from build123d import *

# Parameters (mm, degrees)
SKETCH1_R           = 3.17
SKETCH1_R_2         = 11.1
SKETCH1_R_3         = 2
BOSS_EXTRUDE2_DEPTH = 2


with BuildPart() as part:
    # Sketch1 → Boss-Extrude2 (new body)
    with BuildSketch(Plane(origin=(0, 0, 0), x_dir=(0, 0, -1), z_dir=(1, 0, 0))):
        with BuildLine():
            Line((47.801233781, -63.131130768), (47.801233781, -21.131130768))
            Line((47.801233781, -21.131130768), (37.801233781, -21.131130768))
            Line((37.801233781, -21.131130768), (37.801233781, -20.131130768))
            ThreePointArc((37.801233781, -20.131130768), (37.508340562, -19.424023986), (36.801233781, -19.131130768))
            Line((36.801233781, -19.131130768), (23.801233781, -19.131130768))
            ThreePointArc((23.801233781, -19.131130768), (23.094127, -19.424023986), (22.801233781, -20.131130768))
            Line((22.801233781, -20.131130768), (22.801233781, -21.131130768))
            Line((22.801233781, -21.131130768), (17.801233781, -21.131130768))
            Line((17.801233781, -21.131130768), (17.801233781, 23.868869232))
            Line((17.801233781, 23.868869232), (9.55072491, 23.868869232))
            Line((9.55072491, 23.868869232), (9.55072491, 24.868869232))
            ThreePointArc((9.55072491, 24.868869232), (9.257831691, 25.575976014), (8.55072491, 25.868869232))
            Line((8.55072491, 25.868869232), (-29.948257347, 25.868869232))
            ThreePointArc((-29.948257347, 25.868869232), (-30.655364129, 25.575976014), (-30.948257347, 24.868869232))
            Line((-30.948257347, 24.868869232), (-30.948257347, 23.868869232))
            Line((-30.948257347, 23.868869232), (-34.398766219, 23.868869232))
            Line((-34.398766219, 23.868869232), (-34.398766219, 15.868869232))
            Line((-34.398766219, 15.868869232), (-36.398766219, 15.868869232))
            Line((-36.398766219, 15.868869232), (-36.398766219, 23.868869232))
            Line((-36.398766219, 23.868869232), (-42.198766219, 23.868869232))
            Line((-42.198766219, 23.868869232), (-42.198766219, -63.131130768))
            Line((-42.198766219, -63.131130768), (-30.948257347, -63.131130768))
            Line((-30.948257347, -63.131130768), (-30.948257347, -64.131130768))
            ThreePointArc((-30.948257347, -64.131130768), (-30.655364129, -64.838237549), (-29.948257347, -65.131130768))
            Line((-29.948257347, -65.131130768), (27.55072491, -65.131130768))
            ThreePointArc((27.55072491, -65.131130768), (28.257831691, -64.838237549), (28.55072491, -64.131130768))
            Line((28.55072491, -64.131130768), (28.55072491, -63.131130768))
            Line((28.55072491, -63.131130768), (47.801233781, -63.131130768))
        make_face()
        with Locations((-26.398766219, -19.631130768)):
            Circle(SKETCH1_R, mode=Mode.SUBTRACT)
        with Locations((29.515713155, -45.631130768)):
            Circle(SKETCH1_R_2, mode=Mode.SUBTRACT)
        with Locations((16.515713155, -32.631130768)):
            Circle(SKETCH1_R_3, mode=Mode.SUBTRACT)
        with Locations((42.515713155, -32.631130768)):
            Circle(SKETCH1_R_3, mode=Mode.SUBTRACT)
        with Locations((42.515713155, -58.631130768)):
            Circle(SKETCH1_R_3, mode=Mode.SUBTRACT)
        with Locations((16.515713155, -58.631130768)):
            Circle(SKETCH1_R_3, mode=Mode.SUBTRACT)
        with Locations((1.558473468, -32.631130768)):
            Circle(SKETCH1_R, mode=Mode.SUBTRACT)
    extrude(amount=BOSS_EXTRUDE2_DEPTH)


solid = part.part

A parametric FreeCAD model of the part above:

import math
import FreeCAD as App
import Part
import Sketcher

V = App.Vector
Q = App.Units.Quantity

doc = App.newDocument("Part")
body = doc.addObject("PartDesign::Body", "Body")

# Sketch on YZ plane
sketch1 = doc.addObject("Sketcher::SketchObject", "Sketch")
body.addObject(sketch1)
sketch1.AttachmentSupport = (doc.YZ_Plane, [""])
sketch1.MapMode = "FlatFace"
sketch1.addGeometry(Part.LineSegment(V(-63.1, -47.8, 0), V(-21.1, -47.8, 0)), False)
sketch1.addGeometry(Part.LineSegment(V(-21.1, -47.8, 0), V(-21.1, -37.8, 0)), False)
sketch1.addGeometry(Part.LineSegment(V(-21.1, -37.8, 0), V(-20.1, -37.8, 0)), False)
sketch1.addGeometry(Part.ArcOfCircle(Part.Circle(V(-20.1, -36.8, 0), V(0, 0, 1), 1), math.radians(-90), math.radians(0)), False)
sketch1.addGeometry(Part.LineSegment(V(-19.1, -36.8, 0), V(-19.1, -23.8, 0)), False)
sketch1.addGeometry(Part.ArcOfCircle(Part.Circle(V(-20.1, -23.8, 0), V(0, 0, 1), 1), math.radians(0), math.radians(90)), False)
sketch1.addGeometry(Part.LineSegment(V(-20.1, -22.8, 0), V(-21.1, -22.8, 0)), False)
sketch1.addGeometry(Part.LineSegment(V(-21.1, -22.8, 0), V(-21.1, -17.8, 0)), False)
sketch1.addGeometry(Part.LineSegment(V(-21.1, -17.8, 0), V(23.9, -17.8, 0)), False)
sketch1.addGeometry(Part.LineSegment(V(23.9, -17.8, 0), V(23.9, -9.6, 0)), False)
sketch1.addGeometry(Part.LineSegment(V(23.9, -9.6, 0), V(24.9, -9.6, 0)), False)
sketch1.addGeometry(Part.ArcOfCircle(Part.Circle(V(24.9, -8.6, 0), V(0, 0, 1), 1), math.radians(-90), math.radians(0)), False)
sketch1.addGeometry(Part.LineSegment(V(25.9, -8.6, 0), V(25.9, 29.9, 0)), False)
sketch1.addGeometry(Part.ArcOfCircle(Part.Circle(V(24.9, 29.9, 0), V(0, 0, 1), 1), math.radians(0), math.radians(90)), False)
sketch1.addGeometry(Part.LineSegment(V(24.9, 30.9, 0), V(23.9, 30.9, 0)), False)
sketch1.addGeometry(Part.LineSegment(V(23.9, 30.9, 0), V(23.9, 34.4, 0)), False)
sketch1.addGeometry(Part.LineSegment(V(23.9, 34.4, 0), V(15.9, 34.4, 0)), False)
sketch1.addGeometry(Part.LineSegment(V(15.9, 34.4, 0), V(15.9, 36.4, 0)), False)
sketch1.addGeometry(Part.LineSegment(V(15.9, 36.4, 0), V(23.9, 36.4, 0)), False)
sketch1.addGeometry(Part.LineSegment(V(23.9, 36.4, 0), V(23.9, 42.2, 0)), False)
sketch1.addGeometry(Part.LineSegment(V(23.9, 42.2, 0), V(-63.1, 42.2, 0)), False)
sketch1.addGeometry(Part.LineSegment(V(-63.1, 42.2, 0), V(-63.1, 30.9, 0)), False)
sketch1.addGeometry(Part.LineSegment(V(-63.1, 30.9, 0), V(-64.1, 30.9, 0)), False)
sketch1.addGeometry(Part.ArcOfCircle(Part.Circle(V(-64.1, 29.9, 0), V(0, 0, 1), 1), math.radians(90), math.radians(180)), False)
sketch1.addGeometry(Part.LineSegment(V(-65.1, 29.9, 0), V(-65.1, -27.6, 0)), False)
sketch1.addGeometry(Part.ArcOfCircle(Part.Circle(V(-64.1, -27.6, 0), V(0, 0, 1), 1), math.radians(-180), math.radians(-90)), False)
sketch1.addGeometry(Part.LineSegment(V(-64.1, -28.6, 0), V(-63.1, -28.6, 0)), False)
sketch1.addGeometry(Part.LineSegment(V(-63.1, -28.6, 0), V(-63.1, -47.8, 0)), False)
sketch1.addGeometry(Part.Circle(V(-58.6, -16.5, 0), V(0, 0, 1), 2), False)
sketch1.addGeometry(Part.Circle(V(-58.6, -42.5, 0), V(0, 0, 1), 2), False)
sketch1.addGeometry(Part.Circle(V(-45.6, -29.5, 0), V(0, 0, 1), 11.1), False)
sketch1.addGeometry(Part.Circle(V(-32.6, -1.6, 0), V(0, 0, 1), 3.2), False)
sketch1.addGeometry(Part.Circle(V(-19.6, 26.4, 0), V(0, 0, 1), 3.2), False)
sketch1.addGeometry(Part.Circle(V(-32.6, -16.5, 0), V(0, 0, 1), 2), False)
sketch1.addGeometry(Part.Circle(V(-32.6, -42.5, 0), V(0, 0, 1), 2), False)
sketch1.addConstraint(Sketcher.Constraint("Coincident", 0, 2, 1, 1))
sketch1.addConstraint(Sketcher.Constraint("Coincident", 1, 2, 2, 1))
sketch1.addConstraint(Sketcher.Constraint("Tangent", 2, 2, 3, 1))
sketch1.addConstraint(Sketcher.Constraint("Tangent", 3, 2, 4, 1))
sketch1.addConstraint(Sketcher.Constraint("Tangent", 4, 2, 5, 1))
sketch1.addConstraint(Sketcher.Constraint("Tangent", 5, 2, 6, 1))
sketch1.addConstraint(Sketcher.Constraint("Coincident", 6, 2, 7, 1))
sketch1.addConstraint(Sketcher.Constraint("Coincident", 7, 2, 8, 1))
sketch1.addConstraint(Sketcher.Constraint("Coincident", 8, 2, 9, 1))
sketch1.addConstraint(Sketcher.Constraint("Coincident", 9, 2, 10, 1))
sketch1.addConstraint(Sketcher.Constraint("Tangent", 10, 2, 11, 1))
sketch1.addConstraint(Sketcher.Constraint("Tangent", 11, 2, 12, 1))
sketch1.addConstraint(Sketcher.Constraint("Tangent", 12, 2, 13, 1))
sketch1.addConstraint(Sketcher.Constraint("Tangent", 13, 2, 14, 1))
sketch1.addConstraint(Sketcher.Constraint("Coincident", 14, 2, 15, 1))
sketch1.addConstraint(Sketcher.Constraint("Coincident", 15, 2, 16, 1))
sketch1.addConstraint(Sketcher.Constraint("Coincident", 16, 2, 17, 1))
sketch1.addConstraint(Sketcher.Constraint("Coincident", 17, 2, 18, 1))
sketch1.addConstraint(Sketcher.Constraint("Coincident", 18, 2, 19, 1))
sketch1.addConstraint(Sketcher.Constraint("Coincident", 19, 2, 20, 1))
sketch1.addConstraint(Sketcher.Constraint("Coincident", 20, 2, 21, 1))
sketch1.addConstraint(Sketcher.Constraint("Coincident", 21, 2, 22, 1))
sketch1.addConstraint(Sketcher.Constraint("Tangent", 22, 2, 23, 1))
sketch1.addConstraint(Sketcher.Constraint("Tangent", 23, 2, 24, 1))
sketch1.addConstraint(Sketcher.Constraint("Tangent", 24, 2, 25, 1))
sketch1.addConstraint(Sketcher.Constraint("Tangent", 25, 2, 26, 1))
sketch1.addConstraint(Sketcher.Constraint("Coincident", 26, 2, 27, 1))
sketch1.addConstraint(Sketcher.Constraint("Coincident", 27, 2, 0, 1))
sketch1.addConstraint(Sketcher.Constraint("Horizontal", 0))
sketch1.addConstraint(Sketcher.Constraint("Vertical", 1))
sketch1.addConstraint(Sketcher.Constraint("Horizontal", 2))
sketch1.addConstraint(Sketcher.Constraint("Vertical", 4))
sketch1.addConstraint(Sketcher.Constraint("Horizontal", 6))
sketch1.addConstraint(Sketcher.Constraint("Vertical", 7))
sketch1.addConstraint(Sketcher.Constraint("Horizontal", 8))
sketch1.addConstraint(Sketcher.Constraint("Vertical", 9))
sketch1.addConstraint(Sketcher.Constraint("Horizontal", 10))
sketch1.addConstraint(Sketcher.Constraint("Vertical", 12))
sketch1.addConstraint(Sketcher.Constraint("Horizontal", 14))
sketch1.addConstraint(Sketcher.Constraint("Vertical", 15))
sketch1.addConstraint(Sketcher.Constraint("Horizontal", 16))
sketch1.addConstraint(Sketcher.Constraint("Vertical", 17))
sketch1.addConstraint(Sketcher.Constraint("Horizontal", 18))
sketch1.addConstraint(Sketcher.Constraint("Vertical", 19))
sketch1.addConstraint(Sketcher.Constraint("Horizontal", 20))
sketch1.addConstraint(Sketcher.Constraint("Vertical", 21))
sketch1.addConstraint(Sketcher.Constraint("Horizontal", 22))
sketch1.addConstraint(Sketcher.Constraint("Vertical", 24))
sketch1.addConstraint(Sketcher.Constraint("Horizontal", 26))
sketch1.addConstraint(Sketcher.Constraint("Vertical", 27))
sketch1.addConstraint(Sketcher.Constraint("Equal", 3, 5))
sketch1.addConstraint(Sketcher.Constraint("Equal", 5, 11))
sketch1.addConstraint(Sketcher.Constraint("Equal", 11, 13))
sketch1.addConstraint(Sketcher.Constraint("Equal", 13, 23))
sketch1.addConstraint(Sketcher.Constraint("Equal", 23, 25))
sketch1.addConstraint(Sketcher.Constraint("Equal", 28, 29))
sketch1.addConstraint(Sketcher.Constraint("Equal", 31, 32))
sketch1.addConstraint(Sketcher.Constraint("Equal", 29, 33))
sketch1.addConstraint(Sketcher.Constraint("Equal", 33, 34))
sketch1.addConstraint(Sketcher.Constraint("Horizontal", 13, 3, 23, 3))
sketch1.addConstraint(Sketcher.Constraint("Horizontal", 28, 3, 33, 3))
sketch1.addConstraint(Sketcher.Constraint("Horizontal", 29, 3, 34, 3))
sketch1.addConstraint(Sketcher.Constraint("Vertical", 28, 3, 29, 3))
sketch1.addConstraint(Sketcher.Constraint("Vertical", 31, 3, 33, 3))
sketch1.addConstraint(Sketcher.Constraint("Vertical", 33, 3, 34, 3))
sketch1.addConstraint(Sketcher.Constraint("Vertical", 1, 2, 6, 2))
sketch1.addConstraint(Sketcher.Constraint("Vertical", 9, 2, 14, 2))
sketch1.addConstraint(Sketcher.Constraint("Vertical", 15, 2, 18, 2))
sketch1.addConstraint(Sketcher.Constraint("Vertical", 21, 2, 26, 2))
sketch1.addConstraint(Sketcher.Constraint("Equal", 6, 10))
sketch1.addConstraint(Sketcher.Constraint("Equal", 14, 22))
sketch1.addConstraint(Sketcher.Constraint("Diameter", 28, Q("4 mm")))
sketch1.addConstraint(Sketcher.Constraint("Radius", 3, Q("1 mm")))
sketch1.addConstraint(Sketcher.Constraint("Diameter", 30, Q("22.2 mm")))
sketch1.addConstraint(Sketcher.Constraint("Diameter", 31, Q("6.34 mm")))
sketch1.addConstraint(Sketcher.Constraint("DistanceX", 0, 1, 0, 2, Q("42 mm")))
sketch1.addConstraint(Sketcher.Constraint("DistanceX", 2, 1, 2, 2, Q("1 mm")))
sketch1.addConstraint(Sketcher.Constraint("DistanceX", 8, 1, 8, 2, Q("45 mm")))
sketch1.addConstraint(Sketcher.Constraint("DistanceX", 16, 2, 16, 1, Q("8 mm")))
sketch1.addConstraint(Sketcher.Constraint("DistanceY", 1, 1, 1, 2, Q("10 mm")))
sketch1.addConstraint(Sketcher.Constraint("DistanceY", 4, 1, 4, 2, Q("13 mm")))
sketch1.addConstraint(Sketcher.Constraint("DistanceY", 7, 1, 7, 2, Q("5 mm")))
sketch1.addConstraint(Sketcher.Constraint("DistanceY", 17, 1, 17, 2, Q("2 mm")))
sketch1.addConstraint(Sketcher.Constraint("DistanceY", 19, 1, 19, 2, Q("5.8 mm")))
sketch1.addConstraint(Sketcher.Constraint("DistanceY", 25, 3, 11, 3, Q("19 mm")))
sketch1.addConstraint(Sketcher.Constraint("DistanceY", 29, 3, 28, 3, Q("26 mm")))
sketch1.addConstraint(Sketcher.Constraint("DistanceX", 28, 3, 30, 3, Q("13 mm")))
sketch1.addConstraint(Sketcher.Constraint("DistanceY", 30, 3, 28, 3, Q("13 mm")))
sketch1.addConstraint(Sketcher.Constraint("DistanceX", 28, 3, 31, 3, Q("26 mm")))
sketch1.addConstraint(Sketcher.Constraint("DistanceX", 31, 3, 32, 3, Q("13 mm")))
sketch1.addConstraint(Sketcher.Constraint("DistanceX", 25, 3, 28, 3, Q("5.5 mm")))
sketch1.addConstraint(Sketcher.Constraint("DistanceY", 5, 3, 32, 3, Q("50.2 mm")))
sketch1.addConstraint(Sketcher.Constraint("DistanceY", 32, 3, 20, 2, Q("15.8 mm")))
sketch1.addConstraint(Sketcher.Constraint("DistanceY", 9, 1, 9, 2, Q("8.250509 mm")))
sketch1.addConstraint(Sketcher.Constraint("DistanceY", 15, 1, 15, 2, Q("3.450509 mm")))
sketch1.addConstraint(Sketcher.Constraint("DistanceX", 3, 3, -1, 1, Q("20.131131 mm")))
sketch1.addConstraint(Sketcher.Constraint("DistanceY", 25, 3, 28, 3, Q("11.035012 mm")))
sketch1.addConstraint(Sketcher.Constraint("DistanceY", 5, 3, 31, 3, Q("22.24276 mm")))
sketch1.addConstraint(Sketcher.Constraint("DistanceY", 3, 3, -1, 1, Q("36.801234 mm")))
pad1 = doc.addObject("PartDesign::Pad", "Pad")
body.addObject(pad1)
pad1.Profile = sketch1
pad1.Length = 2

doc.recompute()
